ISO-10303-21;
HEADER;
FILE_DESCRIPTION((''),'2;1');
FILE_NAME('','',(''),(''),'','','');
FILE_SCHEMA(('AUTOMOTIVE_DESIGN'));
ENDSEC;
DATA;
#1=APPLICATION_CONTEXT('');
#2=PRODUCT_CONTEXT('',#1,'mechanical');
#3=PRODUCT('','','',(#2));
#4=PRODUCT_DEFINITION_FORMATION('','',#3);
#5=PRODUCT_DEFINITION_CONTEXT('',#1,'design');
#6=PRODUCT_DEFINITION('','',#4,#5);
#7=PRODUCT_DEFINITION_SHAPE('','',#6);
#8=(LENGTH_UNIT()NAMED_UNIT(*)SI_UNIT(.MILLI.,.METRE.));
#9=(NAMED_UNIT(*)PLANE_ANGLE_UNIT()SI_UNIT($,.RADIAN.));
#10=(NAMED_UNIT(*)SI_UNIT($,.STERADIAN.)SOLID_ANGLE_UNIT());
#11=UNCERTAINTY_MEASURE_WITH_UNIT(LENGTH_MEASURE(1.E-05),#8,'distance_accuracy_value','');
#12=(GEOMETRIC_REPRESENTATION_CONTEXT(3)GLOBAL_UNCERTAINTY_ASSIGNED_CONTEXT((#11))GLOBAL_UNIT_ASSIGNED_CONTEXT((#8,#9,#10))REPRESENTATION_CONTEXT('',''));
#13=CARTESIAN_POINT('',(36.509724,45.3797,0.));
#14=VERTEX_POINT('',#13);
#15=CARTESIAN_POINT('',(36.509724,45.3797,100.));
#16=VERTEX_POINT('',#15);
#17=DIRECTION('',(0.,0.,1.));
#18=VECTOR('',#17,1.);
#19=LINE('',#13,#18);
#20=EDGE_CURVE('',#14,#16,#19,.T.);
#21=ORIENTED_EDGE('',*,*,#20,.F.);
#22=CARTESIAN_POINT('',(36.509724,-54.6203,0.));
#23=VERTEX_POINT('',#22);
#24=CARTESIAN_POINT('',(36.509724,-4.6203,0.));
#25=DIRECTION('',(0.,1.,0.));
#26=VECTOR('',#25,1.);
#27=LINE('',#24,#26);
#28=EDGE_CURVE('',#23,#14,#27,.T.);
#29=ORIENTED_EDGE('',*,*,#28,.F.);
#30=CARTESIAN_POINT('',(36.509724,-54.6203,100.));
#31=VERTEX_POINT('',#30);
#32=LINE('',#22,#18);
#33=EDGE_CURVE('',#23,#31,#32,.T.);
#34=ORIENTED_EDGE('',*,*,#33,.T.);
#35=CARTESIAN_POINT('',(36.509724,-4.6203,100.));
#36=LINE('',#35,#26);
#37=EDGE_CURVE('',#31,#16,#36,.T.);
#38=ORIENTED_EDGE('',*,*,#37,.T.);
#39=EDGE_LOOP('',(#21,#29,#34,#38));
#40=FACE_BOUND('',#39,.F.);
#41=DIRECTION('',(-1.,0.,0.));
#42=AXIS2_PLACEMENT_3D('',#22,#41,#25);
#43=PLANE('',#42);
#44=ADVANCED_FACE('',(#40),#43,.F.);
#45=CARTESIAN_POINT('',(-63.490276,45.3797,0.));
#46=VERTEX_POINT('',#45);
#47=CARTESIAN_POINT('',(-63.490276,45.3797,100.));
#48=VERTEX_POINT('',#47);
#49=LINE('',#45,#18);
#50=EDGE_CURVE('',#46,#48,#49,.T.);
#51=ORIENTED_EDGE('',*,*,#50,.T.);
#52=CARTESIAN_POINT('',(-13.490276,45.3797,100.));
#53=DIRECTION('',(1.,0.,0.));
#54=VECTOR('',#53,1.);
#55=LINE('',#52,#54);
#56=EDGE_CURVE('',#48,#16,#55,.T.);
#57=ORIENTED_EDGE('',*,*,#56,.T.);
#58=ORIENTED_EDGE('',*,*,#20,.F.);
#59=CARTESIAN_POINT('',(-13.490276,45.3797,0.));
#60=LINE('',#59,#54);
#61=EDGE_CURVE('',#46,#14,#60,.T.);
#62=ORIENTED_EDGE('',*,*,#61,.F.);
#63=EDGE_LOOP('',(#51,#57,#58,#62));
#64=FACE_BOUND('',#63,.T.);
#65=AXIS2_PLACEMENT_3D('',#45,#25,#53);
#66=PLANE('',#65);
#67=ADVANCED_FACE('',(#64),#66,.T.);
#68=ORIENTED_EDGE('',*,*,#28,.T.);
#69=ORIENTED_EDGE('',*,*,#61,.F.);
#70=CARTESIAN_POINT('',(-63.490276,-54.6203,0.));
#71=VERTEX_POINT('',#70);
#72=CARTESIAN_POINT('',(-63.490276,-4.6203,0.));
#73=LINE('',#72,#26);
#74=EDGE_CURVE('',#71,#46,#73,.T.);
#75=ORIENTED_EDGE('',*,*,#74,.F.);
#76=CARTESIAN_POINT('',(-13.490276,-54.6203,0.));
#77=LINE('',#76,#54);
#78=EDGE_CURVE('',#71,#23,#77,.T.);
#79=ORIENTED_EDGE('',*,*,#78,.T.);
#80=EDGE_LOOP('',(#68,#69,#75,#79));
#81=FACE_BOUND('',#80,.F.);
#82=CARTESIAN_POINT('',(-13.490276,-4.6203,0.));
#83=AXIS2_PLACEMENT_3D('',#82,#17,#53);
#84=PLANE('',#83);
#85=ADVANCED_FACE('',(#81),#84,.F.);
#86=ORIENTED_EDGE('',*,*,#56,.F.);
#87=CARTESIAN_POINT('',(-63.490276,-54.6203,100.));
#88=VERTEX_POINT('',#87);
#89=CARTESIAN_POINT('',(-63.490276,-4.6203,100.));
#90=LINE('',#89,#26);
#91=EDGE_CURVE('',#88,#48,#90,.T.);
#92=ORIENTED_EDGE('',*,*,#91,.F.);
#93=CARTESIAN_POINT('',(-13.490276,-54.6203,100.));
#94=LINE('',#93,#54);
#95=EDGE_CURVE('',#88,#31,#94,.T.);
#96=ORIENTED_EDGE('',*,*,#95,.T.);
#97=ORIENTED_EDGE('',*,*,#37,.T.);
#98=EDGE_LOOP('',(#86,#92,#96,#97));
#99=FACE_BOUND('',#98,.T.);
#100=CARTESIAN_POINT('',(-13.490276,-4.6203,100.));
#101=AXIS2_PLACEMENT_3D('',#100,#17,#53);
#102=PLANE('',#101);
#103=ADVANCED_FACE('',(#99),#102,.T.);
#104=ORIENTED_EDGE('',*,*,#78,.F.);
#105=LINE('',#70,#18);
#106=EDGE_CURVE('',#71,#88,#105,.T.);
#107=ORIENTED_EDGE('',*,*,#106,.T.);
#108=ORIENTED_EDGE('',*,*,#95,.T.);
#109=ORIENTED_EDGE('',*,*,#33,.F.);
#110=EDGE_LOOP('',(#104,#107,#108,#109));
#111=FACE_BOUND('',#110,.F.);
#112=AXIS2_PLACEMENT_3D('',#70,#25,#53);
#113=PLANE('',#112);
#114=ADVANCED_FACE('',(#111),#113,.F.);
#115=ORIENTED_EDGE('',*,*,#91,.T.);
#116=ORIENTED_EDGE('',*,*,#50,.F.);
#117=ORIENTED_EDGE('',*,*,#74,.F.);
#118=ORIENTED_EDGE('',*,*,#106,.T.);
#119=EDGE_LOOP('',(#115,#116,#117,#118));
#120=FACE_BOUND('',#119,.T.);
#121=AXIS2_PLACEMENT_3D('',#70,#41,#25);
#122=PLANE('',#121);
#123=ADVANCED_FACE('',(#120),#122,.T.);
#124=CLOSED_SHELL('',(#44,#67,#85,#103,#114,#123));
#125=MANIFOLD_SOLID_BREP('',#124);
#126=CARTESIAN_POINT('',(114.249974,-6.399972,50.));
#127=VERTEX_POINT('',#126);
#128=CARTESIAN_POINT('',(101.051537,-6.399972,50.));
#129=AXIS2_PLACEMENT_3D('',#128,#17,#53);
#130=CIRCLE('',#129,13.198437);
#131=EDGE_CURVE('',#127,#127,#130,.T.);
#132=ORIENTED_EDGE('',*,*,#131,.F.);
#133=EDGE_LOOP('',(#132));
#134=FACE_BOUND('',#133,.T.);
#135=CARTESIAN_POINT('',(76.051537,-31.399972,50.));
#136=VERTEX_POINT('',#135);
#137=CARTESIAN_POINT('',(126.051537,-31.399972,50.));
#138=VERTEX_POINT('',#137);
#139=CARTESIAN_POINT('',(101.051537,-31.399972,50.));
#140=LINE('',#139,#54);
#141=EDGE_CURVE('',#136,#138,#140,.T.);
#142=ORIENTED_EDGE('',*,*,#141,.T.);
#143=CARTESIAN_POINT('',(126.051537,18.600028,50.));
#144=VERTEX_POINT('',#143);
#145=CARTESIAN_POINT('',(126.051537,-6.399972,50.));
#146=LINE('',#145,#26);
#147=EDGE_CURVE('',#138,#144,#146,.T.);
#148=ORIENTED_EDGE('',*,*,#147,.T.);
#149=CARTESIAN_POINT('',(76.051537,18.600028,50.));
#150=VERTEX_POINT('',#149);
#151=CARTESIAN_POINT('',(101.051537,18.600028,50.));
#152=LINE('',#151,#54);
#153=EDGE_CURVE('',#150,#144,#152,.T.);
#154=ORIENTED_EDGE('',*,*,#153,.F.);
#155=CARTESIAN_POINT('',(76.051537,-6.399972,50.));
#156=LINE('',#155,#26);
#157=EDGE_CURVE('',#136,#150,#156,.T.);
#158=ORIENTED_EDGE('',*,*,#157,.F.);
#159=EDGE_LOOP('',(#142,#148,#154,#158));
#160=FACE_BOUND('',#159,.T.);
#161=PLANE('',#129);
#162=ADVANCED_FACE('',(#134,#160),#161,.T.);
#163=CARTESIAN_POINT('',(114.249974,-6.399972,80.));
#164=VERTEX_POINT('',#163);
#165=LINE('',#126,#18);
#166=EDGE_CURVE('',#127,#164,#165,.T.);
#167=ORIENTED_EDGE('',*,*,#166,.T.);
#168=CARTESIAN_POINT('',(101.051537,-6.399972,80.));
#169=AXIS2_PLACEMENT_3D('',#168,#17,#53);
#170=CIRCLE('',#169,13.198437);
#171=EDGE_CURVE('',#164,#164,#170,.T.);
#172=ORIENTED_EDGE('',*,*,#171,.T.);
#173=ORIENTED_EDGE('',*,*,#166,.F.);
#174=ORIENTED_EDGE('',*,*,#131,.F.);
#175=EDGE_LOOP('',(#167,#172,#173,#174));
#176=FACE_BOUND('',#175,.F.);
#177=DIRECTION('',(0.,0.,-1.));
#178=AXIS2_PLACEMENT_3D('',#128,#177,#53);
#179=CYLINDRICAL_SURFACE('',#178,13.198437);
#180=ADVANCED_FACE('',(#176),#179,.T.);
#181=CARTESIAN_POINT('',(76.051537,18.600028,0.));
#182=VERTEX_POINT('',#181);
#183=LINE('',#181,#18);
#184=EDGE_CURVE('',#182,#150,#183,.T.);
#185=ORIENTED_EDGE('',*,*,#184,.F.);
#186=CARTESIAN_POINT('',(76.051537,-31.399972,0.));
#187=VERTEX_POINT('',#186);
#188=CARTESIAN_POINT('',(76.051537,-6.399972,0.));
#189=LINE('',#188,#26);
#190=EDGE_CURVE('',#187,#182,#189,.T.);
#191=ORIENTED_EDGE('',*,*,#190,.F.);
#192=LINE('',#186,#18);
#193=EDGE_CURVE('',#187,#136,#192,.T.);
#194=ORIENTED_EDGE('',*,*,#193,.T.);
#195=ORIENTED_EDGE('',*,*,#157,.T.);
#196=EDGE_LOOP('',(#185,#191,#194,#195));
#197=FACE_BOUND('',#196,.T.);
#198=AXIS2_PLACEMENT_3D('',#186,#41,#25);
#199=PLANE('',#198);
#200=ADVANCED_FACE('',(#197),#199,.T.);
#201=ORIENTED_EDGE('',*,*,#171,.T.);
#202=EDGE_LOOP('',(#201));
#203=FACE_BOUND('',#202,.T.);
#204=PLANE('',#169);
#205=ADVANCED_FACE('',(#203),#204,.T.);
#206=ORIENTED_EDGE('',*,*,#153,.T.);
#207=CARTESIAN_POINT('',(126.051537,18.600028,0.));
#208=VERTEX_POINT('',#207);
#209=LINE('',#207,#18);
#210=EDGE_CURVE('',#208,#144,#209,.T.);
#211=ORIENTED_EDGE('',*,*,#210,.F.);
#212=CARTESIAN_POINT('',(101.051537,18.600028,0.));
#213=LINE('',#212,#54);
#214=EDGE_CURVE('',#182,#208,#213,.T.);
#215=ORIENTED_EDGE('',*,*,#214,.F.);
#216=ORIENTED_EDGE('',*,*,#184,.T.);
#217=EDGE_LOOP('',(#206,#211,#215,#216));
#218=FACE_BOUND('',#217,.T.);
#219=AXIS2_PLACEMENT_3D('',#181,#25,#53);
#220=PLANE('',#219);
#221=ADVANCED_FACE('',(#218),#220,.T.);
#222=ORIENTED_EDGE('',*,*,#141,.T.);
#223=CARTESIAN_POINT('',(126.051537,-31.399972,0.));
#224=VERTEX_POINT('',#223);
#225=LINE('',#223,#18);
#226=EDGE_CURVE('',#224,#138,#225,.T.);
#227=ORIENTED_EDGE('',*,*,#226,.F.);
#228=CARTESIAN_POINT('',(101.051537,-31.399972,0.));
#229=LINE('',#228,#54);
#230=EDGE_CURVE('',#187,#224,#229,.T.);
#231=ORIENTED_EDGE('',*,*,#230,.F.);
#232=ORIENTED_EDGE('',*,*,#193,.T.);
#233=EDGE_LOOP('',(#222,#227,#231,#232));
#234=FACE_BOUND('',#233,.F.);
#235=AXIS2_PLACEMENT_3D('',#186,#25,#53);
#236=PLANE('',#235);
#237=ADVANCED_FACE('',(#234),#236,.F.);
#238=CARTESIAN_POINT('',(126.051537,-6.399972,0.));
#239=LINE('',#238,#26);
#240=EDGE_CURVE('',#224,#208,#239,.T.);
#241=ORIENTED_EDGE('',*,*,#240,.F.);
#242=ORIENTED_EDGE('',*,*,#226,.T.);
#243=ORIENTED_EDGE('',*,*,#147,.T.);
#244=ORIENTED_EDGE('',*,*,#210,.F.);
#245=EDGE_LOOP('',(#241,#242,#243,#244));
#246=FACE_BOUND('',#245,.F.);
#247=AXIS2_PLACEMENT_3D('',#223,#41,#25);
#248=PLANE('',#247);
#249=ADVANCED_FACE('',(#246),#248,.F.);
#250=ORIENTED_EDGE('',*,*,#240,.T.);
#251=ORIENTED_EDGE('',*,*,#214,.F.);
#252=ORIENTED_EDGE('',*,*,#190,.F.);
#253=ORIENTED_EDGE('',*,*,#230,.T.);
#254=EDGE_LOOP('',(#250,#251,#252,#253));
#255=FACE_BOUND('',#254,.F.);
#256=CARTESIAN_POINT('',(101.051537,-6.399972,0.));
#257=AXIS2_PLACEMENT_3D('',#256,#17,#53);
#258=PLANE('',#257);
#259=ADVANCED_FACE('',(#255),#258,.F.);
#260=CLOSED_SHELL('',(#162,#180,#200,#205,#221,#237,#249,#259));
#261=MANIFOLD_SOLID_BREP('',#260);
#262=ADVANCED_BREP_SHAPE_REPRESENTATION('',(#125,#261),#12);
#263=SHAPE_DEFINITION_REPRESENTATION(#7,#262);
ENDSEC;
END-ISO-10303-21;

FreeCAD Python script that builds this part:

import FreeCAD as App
import Part
import Sketcher
from FreeCAD import Vector
Q = App.Units.Quantity


def add_polygon(sketch, points):
    """Adds a closed chain of lines whose ends are joined by coincident constraints."""
    first, n = sketch.GeometryCount, len(points)
    for a, b in zip(points, points[1:] + points[:1]):
        sketch.addGeometry(Part.LineSegment(App.Vector(*a, 0), App.Vector(*b, 0)), False)
    for i in range(n):
        sketch.addConstraint(Sketcher.Constraint("Coincident", first + i, 2, first + (i + 1) % n, 1))

doc = App.newDocument("Part")
body = doc.addObject("PartDesign::Body", "Body")

sketch1 = body.newObject("Sketcher::SketchObject", "Sketch")
sketch1.AttachmentSupport = (doc.getObject("XY_Plane"), [""])
sketch1.MapMode = "FlatFace"
add_polygon(sketch1, [(-63, 45), (-63, -55), (37, -55), (37, 45)])
sketch1.addConstraint([
    Sketcher.Constraint("Vertical", 0),
    Sketcher.Constraint("Horizontal", 1),
    Sketcher.Constraint("Vertical", 2),
    Sketcher.Constraint("Horizontal", 3),
    Sketcher.Constraint("Equal", 3, 0),
    Sketcher.Constraint("DistanceX", 1, 1, 1, 2, Q("100 mm")),
    Sketcher.Constraint("DistanceY", 0, 2, -1, 1, Q("54.6203 mm")),
    Sketcher.Constraint("DistanceX", 0, 2, -1, 1, Q("63.490276 mm")),
])
pad1 = body.newObject("PartDesign::Pad", "Pad")
pad1.Profile = sketch1
pad1.Length = 100
body2 = doc.addObject("PartDesign::Body", "Body001")

sketch2 = body2.newObject("Sketcher::SketchObject", "Sketch001")
sketch2.AttachmentSupport = (doc.getObject("XY_Plane001"), [""])
sketch2.MapMode = "FlatFace"
add_polygon(sketch2, [(76, 19), (76, -31), (126, -31), (126, 19)])
sketch2.addConstraint([
    Sketcher.Constraint("Vertical", 0),
    Sketcher.Constraint("Horizontal", 1),
    Sketcher.Constraint("Vertical", 2),
    Sketcher.Constraint("Horizontal", 3),
    Sketcher.Constraint("Equal", 3, 0),
    Sketcher.Constraint("DistanceX", 1, 1, 1, 2, Q("50 mm")),
    Sketcher.Constraint("DistanceX", -1, 1, 0, 2, Q("76.051537 mm")),
    Sketcher.Constraint("DistanceY", 0, 2, -1, 1, Q("31.399972 mm")),
])
pad2 = body2.newObject("PartDesign::Pad", "Pad001")
pad2.Profile = sketch2
pad2.Length = 50

sketch3 = body2.newObject("Sketcher::SketchObject", "Sketch002")
sketch3.AttachmentSupport = (doc.getObject("XY_Plane001"), [""])
sketch3.MapMode = "FlatFace"
sketch3.AttachmentOffset = App.Placement(Vector(0, 0, 50), App.Rotation())
sketch3.addGeometry(Part.Circle(Vector(101, -6, 0), Vector(0, 0, 1), 13), False)
sketch3.addConstraint([
    Sketcher.Constraint("Diameter", 0, Q("26.396874 mm")),
    Sketcher.Constraint("DistanceX", -1, 1, 0, 3, Q("101.051537 mm")),
    Sketcher.Constraint("DistanceY", 0, 3, -1, 1, Q("6.399972 mm")),
])
pad3 = body2.newObject("PartDesign::Pad", "Pad002")
pad3.Profile = sketch3
pad3.Length = 30

doc.recompute()
